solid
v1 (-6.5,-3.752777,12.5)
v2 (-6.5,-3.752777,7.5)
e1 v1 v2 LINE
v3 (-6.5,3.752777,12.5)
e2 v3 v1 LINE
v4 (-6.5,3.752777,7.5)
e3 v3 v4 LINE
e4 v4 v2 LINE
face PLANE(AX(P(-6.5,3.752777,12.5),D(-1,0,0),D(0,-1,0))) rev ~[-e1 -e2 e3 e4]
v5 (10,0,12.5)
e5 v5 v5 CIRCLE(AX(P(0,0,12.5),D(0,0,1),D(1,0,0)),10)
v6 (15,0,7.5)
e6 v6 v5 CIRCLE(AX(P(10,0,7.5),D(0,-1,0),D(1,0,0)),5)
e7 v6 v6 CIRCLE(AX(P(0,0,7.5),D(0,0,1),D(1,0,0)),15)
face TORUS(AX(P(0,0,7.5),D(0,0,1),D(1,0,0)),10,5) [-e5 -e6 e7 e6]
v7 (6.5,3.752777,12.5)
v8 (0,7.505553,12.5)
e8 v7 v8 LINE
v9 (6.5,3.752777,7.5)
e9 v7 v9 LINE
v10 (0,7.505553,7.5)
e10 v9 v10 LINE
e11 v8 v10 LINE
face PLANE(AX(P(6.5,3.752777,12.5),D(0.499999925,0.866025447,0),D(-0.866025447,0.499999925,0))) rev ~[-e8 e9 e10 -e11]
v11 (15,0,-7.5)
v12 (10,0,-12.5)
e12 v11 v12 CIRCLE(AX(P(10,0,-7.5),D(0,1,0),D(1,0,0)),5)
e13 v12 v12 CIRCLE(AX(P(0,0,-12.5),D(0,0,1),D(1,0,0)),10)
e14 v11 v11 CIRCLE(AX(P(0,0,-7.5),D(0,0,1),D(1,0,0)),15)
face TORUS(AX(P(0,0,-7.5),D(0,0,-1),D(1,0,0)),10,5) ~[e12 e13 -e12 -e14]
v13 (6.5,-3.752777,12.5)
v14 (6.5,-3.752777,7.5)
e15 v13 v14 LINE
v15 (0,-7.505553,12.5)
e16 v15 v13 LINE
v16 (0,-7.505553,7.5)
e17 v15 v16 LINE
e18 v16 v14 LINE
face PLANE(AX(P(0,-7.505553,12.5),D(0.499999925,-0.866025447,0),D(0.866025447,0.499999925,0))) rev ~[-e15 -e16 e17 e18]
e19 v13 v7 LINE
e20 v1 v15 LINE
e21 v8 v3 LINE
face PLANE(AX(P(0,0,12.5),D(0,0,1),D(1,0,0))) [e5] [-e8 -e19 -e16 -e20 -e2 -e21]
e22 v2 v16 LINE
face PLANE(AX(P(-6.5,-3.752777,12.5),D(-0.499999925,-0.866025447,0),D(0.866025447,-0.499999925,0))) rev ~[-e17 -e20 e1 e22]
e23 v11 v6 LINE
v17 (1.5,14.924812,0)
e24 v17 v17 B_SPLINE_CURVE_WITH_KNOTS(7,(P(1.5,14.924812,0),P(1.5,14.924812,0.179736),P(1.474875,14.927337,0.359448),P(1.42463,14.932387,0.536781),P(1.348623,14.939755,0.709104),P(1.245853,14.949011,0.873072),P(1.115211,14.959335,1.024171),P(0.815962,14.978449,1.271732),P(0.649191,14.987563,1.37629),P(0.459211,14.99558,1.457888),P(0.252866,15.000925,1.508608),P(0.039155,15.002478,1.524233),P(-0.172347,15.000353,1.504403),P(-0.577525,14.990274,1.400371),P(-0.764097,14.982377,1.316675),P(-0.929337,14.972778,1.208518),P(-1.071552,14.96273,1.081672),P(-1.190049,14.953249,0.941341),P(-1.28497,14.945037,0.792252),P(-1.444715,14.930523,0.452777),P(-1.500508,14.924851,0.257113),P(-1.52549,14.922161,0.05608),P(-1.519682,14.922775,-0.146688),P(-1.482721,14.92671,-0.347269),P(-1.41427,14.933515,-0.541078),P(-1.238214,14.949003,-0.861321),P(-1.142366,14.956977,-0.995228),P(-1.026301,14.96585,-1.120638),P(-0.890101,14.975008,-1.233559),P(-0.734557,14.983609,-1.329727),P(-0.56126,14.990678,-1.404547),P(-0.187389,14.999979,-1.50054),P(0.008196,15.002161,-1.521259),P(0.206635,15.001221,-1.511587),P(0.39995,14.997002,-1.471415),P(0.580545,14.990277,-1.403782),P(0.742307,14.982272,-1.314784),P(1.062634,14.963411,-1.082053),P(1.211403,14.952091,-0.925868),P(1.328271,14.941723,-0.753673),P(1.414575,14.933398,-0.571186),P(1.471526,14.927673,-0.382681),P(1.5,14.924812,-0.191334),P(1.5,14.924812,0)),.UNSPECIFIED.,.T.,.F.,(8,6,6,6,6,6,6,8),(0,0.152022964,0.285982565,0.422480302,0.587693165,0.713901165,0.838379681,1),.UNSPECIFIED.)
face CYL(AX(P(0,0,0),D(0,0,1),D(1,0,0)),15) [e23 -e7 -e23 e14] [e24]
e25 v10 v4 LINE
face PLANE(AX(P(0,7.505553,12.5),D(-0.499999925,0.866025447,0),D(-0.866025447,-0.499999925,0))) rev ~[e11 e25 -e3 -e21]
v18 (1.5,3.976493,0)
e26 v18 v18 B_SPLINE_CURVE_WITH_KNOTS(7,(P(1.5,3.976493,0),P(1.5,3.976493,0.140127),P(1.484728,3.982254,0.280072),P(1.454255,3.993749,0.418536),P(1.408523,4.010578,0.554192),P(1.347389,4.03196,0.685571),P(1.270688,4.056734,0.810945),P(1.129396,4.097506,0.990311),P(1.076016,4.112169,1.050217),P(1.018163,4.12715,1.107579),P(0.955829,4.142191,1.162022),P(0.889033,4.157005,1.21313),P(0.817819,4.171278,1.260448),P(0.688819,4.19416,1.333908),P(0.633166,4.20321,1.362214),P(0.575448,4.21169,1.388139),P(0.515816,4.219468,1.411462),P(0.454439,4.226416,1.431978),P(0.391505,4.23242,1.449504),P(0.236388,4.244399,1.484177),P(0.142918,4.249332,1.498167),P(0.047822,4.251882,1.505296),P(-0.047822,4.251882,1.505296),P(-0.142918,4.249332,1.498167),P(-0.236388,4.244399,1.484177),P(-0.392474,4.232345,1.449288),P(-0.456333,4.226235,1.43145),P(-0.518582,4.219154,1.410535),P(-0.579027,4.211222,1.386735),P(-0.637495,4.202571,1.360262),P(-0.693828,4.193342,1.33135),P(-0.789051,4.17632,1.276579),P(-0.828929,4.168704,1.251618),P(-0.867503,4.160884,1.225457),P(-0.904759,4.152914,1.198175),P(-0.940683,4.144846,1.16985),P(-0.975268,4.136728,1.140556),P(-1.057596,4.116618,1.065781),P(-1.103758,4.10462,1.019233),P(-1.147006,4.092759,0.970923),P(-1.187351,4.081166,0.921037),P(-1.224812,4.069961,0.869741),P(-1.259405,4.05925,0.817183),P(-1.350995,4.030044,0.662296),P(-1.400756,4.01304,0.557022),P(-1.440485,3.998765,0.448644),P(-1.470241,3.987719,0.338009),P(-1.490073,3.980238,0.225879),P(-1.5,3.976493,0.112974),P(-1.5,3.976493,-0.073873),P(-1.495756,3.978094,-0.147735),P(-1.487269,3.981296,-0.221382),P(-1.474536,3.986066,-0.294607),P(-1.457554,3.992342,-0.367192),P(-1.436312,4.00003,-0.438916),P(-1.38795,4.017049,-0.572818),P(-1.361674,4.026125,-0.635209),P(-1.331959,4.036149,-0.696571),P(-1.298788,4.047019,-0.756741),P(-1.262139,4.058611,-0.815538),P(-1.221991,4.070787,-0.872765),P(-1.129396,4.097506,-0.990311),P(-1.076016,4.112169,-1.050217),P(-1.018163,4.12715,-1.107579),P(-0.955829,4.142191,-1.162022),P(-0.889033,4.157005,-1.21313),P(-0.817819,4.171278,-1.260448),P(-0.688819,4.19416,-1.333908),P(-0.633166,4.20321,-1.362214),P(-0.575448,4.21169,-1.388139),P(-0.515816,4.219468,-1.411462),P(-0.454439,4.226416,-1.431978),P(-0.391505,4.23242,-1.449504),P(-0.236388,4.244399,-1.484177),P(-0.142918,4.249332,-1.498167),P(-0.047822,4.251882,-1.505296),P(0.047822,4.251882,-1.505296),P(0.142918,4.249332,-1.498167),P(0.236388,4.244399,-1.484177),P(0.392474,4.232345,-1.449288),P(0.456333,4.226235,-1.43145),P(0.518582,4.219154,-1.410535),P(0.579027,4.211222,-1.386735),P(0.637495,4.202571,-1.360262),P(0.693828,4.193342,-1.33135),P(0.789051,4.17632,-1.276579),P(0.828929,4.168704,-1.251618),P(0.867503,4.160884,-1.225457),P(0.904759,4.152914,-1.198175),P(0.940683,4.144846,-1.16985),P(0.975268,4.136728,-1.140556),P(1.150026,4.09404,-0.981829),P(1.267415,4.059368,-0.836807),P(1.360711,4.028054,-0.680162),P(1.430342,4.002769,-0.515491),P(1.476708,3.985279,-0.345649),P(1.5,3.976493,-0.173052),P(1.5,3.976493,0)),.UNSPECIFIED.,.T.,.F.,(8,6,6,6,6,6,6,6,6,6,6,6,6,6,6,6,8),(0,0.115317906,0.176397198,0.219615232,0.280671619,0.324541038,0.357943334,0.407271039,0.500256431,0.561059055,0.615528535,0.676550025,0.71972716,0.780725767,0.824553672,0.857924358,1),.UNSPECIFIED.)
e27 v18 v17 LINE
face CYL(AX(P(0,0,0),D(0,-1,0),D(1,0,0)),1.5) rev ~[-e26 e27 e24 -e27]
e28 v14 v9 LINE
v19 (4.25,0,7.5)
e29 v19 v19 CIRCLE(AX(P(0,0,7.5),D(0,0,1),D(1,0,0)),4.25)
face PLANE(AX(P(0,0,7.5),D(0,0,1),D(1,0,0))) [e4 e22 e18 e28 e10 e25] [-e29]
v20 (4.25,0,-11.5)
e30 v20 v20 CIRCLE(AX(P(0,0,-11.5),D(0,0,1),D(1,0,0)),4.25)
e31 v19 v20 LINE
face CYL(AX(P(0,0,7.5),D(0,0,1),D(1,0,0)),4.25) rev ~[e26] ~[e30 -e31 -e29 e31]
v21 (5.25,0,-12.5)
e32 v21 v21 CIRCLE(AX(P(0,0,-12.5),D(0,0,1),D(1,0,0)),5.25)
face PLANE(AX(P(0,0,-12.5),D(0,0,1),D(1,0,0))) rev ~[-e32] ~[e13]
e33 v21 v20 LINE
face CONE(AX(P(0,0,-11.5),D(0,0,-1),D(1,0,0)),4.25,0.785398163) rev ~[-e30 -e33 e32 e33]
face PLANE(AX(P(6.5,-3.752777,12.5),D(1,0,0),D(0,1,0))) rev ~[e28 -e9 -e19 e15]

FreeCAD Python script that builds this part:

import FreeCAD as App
import Part
import Sketcher
from FreeCAD import Vector
Q = App.Units.Quantity


def edges_at(feature, points):
    """Names of the edges that pass closest to the given points."""
    edges = feature.Shape.Edges
    near = lambda p: min(range(len(edges)), key=lambda i: edges[i].distToShape(Part.Vertex(*p))[0])
    return sorted({f"Edge{near(p) + 1}" for p in points})

doc = App.newDocument("Part")
body = doc.addObject("PartDesign::Body", "Body")

sketch1 = body.newObject("Sketcher::SketchObject", "Sketch")
sketch1.AttachmentSupport = (doc.getObject("XY_Plane"), [""])
sketch1.MapMode = "FlatFace"
sketch1.addGeometry(Part.Circle(Vector(0, 0, 0), Vector(0, 0, 1), 15), False)
sketch1.addConstraint(Sketcher.Constraint("Coincident", 0, 3, -1, 1))
sketch1.addConstraint(Sketcher.Constraint("Diameter", 0, 30.0))
pad1 = body.newObject("PartDesign::Pad", "Pad")
pad1.Profile = sketch1
pad1.Length = 25
pad1.Midplane = True

sketch2 = body.newObject("Sketcher::SketchObject", "Sketch001")
sketch2.AttachmentSupport = (doc.getObject("XY_Plane"), [""])
sketch2.MapMode = "FlatFace"
sketch2.AttachmentOffset = App.Placement(Vector(0, 0, 12.5), App.Rotation())
sketch2.addGeometry(Part.LineSegment(Vector(6, -4, 0), Vector(6, 4, 0)), False)
sketch2.addGeometry(Part.LineSegment(Vector(6, 4, 0), Vector(0, 8, 0)), False)
sketch2.addGeometry(Part.LineSegment(Vector(0, 8, 0), Vector(-6, 4, 0)), False)
sketch2.addGeometry(Part.LineSegment(Vector(-6, 4, 0), Vector(-6, -4, 0)), False)
sketch2.addGeometry(Part.LineSegment(Vector(-6, -4, 0), Vector(0, -8, 0)), False)
sketch2.addGeometry(Part.LineSegment(Vector(0, -8, 0), Vector(6, -4, 0)), False)
sketch2.addConstraint(Sketcher.Constraint("Coincident", 0, 2, 1, 1))
sketch2.addConstraint(Sketcher.Constraint("Coincident", 1, 2, 2, 1))
sketch2.addConstraint(Sketcher.Constraint("Coincident", 2, 2, 3, 1))
sketch2.addConstraint(Sketcher.Constraint("Coincident", 3, 2, 4, 1))
sketch2.addConstraint(Sketcher.Constraint("Coincident", 4, 2, 5, 1))
sketch2.addConstraint(Sketcher.Constraint("Coincident", 5, 2, 0, 1))
sketch2.addConstraint(Sketcher.Constraint("Vertical", 0))
sketch2.addConstraint(Sketcher.Constraint("Vertical", 3))
sketch2.addConstraint(Sketcher.Constraint("Symmetric", 0, 2, 3, 2, -1, 1))
sketch2.addConstraint(Sketcher.Constraint("Symmetric", 1, 2, 4, 2, -1, 1))
sketch2.addConstraint(Sketcher.Constraint("PointOnObject", 1, 2, -2))
sketch2.addConstraint(Sketcher.Constraint("Parallel", 2, 5))
sketch2.addConstraint(Sketcher.Constraint("Horizontal", 0, 2, 2, 2))
sketch2.addConstraint(Sketcher.Constraint("Angle", 1, Q("150.000005 deg")))
sketch2.addConstraint(Sketcher.Constraint("DistanceX", 2, 2, 0, 2, 13.0))
sketch2.addConstraint(Sketcher.Constraint("DistanceY", 0, 1, 0, 2, 7.505554))
pocket1 = body.newObject("PartDesign::Pocket", "Pocket")
pocket1.Profile = sketch2
pocket1.Length = 5

sketch3 = body.newObject("Sketcher::SketchObject", "Sketch002")
sketch3.AttachmentSupport = (doc.getObject("XY_Plane"), [""])
sketch3.MapMode = "FlatFace"
sketch3.AttachmentOffset = App.Placement(Vector(0, 0, 7.5), App.Rotation())
sketch3.addGeometry(Part.Circle(Vector(0, 0, 0), Vector(0, 0, 1), 4.2), False)
sketch3.addConstraint(Sketcher.Constraint("Coincident", 0, 3, -1, 1))
sketch3.addConstraint(Sketcher.Constraint("Diameter", 0, 8.5))
pocket2 = body.newObject("PartDesign::Pocket", "Pocket001")
pocket2.Profile = sketch3
pocket2.Type = "ThroughAll"
doc.recompute()

fillet = body.newObject("PartDesign::Fillet", "Fillet")
fillet.Base = (pocket2, edges_at(pocket2, [(-15, 0, 12.5), (-15, 0, -12.5)]))
fillet.Radius = 5
doc.recompute()

chamfer = body.newObject("PartDesign::Chamfer", "Chamfer")
chamfer.Base = (fillet, edges_at(fillet, [(-4.25, 0, -12.5)]))
chamfer.Size = 1

sketch4 = body.newObject("Sketcher::SketchObject", "Sketch003")
sketch4.AttachmentSupport = (doc.getObject("XZ_Plane"), [""])
sketch4.MapMode = "FlatFace"
sketch4.addGeometry(Part.Circle(Vector(0, 0, 0), Vector(0, 0, 1), 1.5), False)
sketch4.addConstraint(Sketcher.Constraint("Coincident", 0, 3, -1, 1))
sketch4.addConstraint(Sketcher.Constraint("Diameter", 0, 3.0))
pocket3 = body.newObject("PartDesign::Pocket", "Pocket002")
pocket3.Profile = sketch4
pocket3.Length = 50

doc.recompute()
